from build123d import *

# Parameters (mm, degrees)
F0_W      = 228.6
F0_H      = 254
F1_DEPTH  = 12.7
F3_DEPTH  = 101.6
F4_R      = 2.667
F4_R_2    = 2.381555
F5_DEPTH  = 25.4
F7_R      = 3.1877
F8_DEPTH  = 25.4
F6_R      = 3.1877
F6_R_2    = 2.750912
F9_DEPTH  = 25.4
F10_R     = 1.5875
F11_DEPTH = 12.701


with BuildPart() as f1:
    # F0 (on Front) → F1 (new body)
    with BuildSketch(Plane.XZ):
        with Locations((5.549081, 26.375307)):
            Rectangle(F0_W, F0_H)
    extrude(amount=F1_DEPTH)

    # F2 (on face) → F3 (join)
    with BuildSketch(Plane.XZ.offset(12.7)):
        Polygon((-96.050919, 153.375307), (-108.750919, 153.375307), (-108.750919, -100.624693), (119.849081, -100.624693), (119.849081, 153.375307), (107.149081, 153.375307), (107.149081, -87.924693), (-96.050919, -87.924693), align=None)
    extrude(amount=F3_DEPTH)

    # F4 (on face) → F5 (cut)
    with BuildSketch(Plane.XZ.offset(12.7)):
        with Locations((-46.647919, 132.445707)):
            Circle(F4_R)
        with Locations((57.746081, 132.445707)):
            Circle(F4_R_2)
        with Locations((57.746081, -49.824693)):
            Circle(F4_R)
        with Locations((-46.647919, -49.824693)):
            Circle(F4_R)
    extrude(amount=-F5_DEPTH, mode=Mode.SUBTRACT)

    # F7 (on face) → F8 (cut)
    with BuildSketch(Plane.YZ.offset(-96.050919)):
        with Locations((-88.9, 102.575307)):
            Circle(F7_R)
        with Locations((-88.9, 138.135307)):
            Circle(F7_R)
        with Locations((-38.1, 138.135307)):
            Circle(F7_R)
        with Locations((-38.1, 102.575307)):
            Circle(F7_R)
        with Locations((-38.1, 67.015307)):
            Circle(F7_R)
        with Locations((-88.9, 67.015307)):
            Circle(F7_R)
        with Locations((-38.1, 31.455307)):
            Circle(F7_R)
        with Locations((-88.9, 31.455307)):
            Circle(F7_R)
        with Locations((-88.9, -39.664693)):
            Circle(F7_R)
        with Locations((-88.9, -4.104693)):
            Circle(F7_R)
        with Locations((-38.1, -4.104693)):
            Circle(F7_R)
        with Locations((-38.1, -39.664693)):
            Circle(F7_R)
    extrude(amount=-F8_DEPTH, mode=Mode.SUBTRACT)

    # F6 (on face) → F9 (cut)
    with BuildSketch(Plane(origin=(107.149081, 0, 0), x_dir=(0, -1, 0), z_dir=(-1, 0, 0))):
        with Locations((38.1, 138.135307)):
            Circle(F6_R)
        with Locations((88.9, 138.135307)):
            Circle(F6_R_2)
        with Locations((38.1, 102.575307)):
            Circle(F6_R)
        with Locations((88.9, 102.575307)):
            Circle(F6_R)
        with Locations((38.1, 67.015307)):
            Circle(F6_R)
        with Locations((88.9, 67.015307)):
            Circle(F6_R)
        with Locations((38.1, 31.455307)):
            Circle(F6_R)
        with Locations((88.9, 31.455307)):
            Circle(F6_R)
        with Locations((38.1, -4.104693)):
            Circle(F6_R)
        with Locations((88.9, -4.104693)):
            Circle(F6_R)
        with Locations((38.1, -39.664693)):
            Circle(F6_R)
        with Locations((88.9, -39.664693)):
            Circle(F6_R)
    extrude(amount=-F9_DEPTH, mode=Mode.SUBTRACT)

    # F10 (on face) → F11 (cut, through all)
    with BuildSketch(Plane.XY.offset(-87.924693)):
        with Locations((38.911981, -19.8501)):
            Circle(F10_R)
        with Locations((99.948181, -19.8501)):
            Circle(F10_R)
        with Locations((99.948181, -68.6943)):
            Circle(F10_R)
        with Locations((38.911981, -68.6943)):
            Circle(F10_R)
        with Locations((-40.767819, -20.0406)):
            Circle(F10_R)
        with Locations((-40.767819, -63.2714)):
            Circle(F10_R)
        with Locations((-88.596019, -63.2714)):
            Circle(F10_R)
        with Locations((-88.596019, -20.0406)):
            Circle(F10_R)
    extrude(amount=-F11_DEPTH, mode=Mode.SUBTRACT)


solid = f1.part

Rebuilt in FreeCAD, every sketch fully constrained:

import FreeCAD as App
import Part
import Sketcher

V = App.Vector
Q = App.Units.Quantity

doc = App.newDocument("Part")
params = doc.addObject("Spreadsheet::Sheet", "Params")
for row, (alias, value) in enumerate([
    ("sketch1_width", "9 in"),
    ("sketch1_height", "10 in"),
    ("pad1_length", "0.5 in"),
    ("sketch2_width", "9 in"),
    ("sketch2_width2", "8 in"),
    ("sketch2_height", "10 in"),
    ("sketch2_height2", "9.5 in"),
    ("pad2_length", "4 in"),
    ("sketch3_diameter", "0.21 in"),
    ("pocket1_length", "1 in"),
    ("sketch4_diameter", "0.251 in"),
    ("pocket2_length", "1 in"),
    ("sketch5_diameter", "0.251 in"),
    ("pocket3_length", "1 in"),
    ("sketch6_diameter", "0.125 in"),
], start=1):
    params.set(f"A{row}", alias)
    params.set(f"B{row}", "=" + value)
    params.setAlias(f"B{row}", alias)

body = doc.addObject("PartDesign::Body", "Body")

sketch1 = doc.addObject("Sketcher::SketchObject", "Sketch")
body.addObject(sketch1)
sketch1.AttachmentSupport = (doc.XZ_Plane, [""])
sketch1.MapMode = "FlatFace"
sketch1.addGeometry([
    Part.LineSegment(V(-108.750919, 153.375307, 0), V(-108.750919, -100.624693, 0)),
    Part.LineSegment(V(-108.750919, -100.624693, 0), V(119.849081, -100.624693, 0)),
    Part.LineSegment(V(119.849081, -100.624693, 0), V(119.849081, 153.375307, 0)),
    Part.LineSegment(V(119.849081, 153.375307, 0), V(-108.750919, 153.375307, 0)),
], False)
sketch1.addConstraint([
    Sketcher.Constraint("Coincident", 0, 2, 1, 1),
    Sketcher.Constraint("Coincident", 1, 2, 2, 1),
    Sketcher.Constraint("Coincident", 2, 2, 3, 1),
    Sketcher.Constraint("Coincident", 3, 2, 0, 1),
    Sketcher.Constraint("Vertical", 0),
    Sketcher.Constraint("Horizontal", 1),
    Sketcher.Constraint("Vertical", 2),
    Sketcher.Constraint("Horizontal", 3),
    Sketcher.Constraint("DistanceX", 1, 1, 1, 2, Q("9 in")),
    Sketcher.Constraint("DistanceY", 0, 2, 0, 1, Q("10 in")),
    Sketcher.Constraint("DistanceX", 0, 2, -1, 1, Q("108.750919 mm")),
    Sketcher.Constraint("DistanceY", 0, 2, -1, 1, Q("100.624693 mm")),
])
sketch1.setExpression("Constraints[8]", "Params.sketch1_width")
sketch1.setExpression("Constraints[9]", "Params.sketch1_height")
pad1 = doc.addObject("PartDesign::Pad", "Pad")
body.addObject(pad1)
pad1.Profile = sketch1
pad1.setExpression("Length", "Params.pad1_length")

sketch2 = doc.addObject("Sketcher::SketchObject", "Sketch001")
body.addObject(sketch2)
sketch2.AttachmentSupport = (doc.XZ_Plane, [""])
sketch2.MapMode = "FlatFace"
sketch2.AttachmentOffset = App.Placement(V(0, 0, 0.5 * 25.4), App.Rotation())
sketch2.addGeometry([
    Part.LineSegment(V(-96.050919, 153.375307, 0), V(-108.750919, 153.375307, 0)),
    Part.LineSegment(V(-108.750919, 153.375307, 0), V(-108.750919, -100.624693, 0)),
    Part.LineSegment(V(-108.750919, -100.624693, 0), V(119.849081, -100.624693, 0)),
    Part.LineSegment(V(119.849081, -100.624693, 0), V(119.849081, 153.375307, 0)),
    Part.LineSegment(V(119.849081, 153.375307, 0), V(107.149081, 153.375307, 0)),
    Part.LineSegment(V(107.149081, 153.375307, 0), V(107.149081, -87.924693, 0)),
    Part.LineSegment(V(107.149081, -87.924693, 0), V(-96.050919, -87.924693, 0)),
    Part.LineSegment(V(-96.050919, -87.924693, 0), V(-96.050919, 153.375307, 0)),
], False)
sketch2.addConstraint([
    Sketcher.Constraint("Coincident", 0, 2, 1, 1),
    Sketcher.Constraint("Coincident", 1, 2, 2, 1),
    Sketcher.Constraint("Coincident", 2, 2, 3, 1),
    Sketcher.Constraint("Coincident", 3, 2, 4, 1),
    Sketcher.Constraint("Coincident", 4, 2, 5, 1),
    Sketcher.Constraint("Coincident", 5, 2, 6, 1),
    Sketcher.Constraint("Coincident", 6, 2, 7, 1),
    Sketcher.Constraint("Coincident", 7, 2, 0, 1),
    Sketcher.Constraint("Horizontal", 0),
    Sketcher.Constraint("Vertical", 1),
    Sketcher.Constraint("Horizontal", 2),
    Sketcher.Constraint("Vertical", 3),
    Sketcher.Constraint("Horizontal", 4),
    Sketcher.Constraint("Vertical", 5),
    Sketcher.Constraint("Horizontal", 6),
    Sketcher.Constraint("Vertical", 7),
    Sketcher.Constraint("Horizontal", 0, 2, 3, 2),
    Sketcher.Constraint("Equal", 0, 4),
    Sketcher.Constraint("DistanceX", 2, 1, 2, 2, Q("9 in")),
    Sketcher.Constraint("DistanceX", 6, 2, 6, 1, Q("8 in")),
    Sketcher.Constraint("DistanceY", 1, 2, 1, 1, Q("10 in")),
    Sketcher.Constraint("DistanceY", 5, 2, 5, 1, Q("9.5 in")),
    Sketcher.Constraint("DistanceX", 0, 2, -1, 1, Q("108.750919 mm")),
    Sketcher.Constraint("DistanceY", -1, 1, 0, 2, Q("153.375307 mm")),
])
sketch2.setExpression("Constraints[18]", "Params.sketch2_width")
sketch2.setExpression("Constraints[19]", "Params.sketch2_width2")
sketch2.setExpression("Constraints[20]", "Params.sketch2_height")
sketch2.setExpression("Constraints[21]", "Params.sketch2_height2")
pad2 = doc.addObject("PartDesign::Pad", "Pad001")
body.addObject(pad2)
pad2.Profile = sketch2
pad2.setExpression("Length", "Params.pad2_length")

sketch3 = doc.addObject("Sketcher::SketchObject", "Sketch002")
body.addObject(sketch3)
sketch3.AttachmentSupport = (doc.XZ_Plane, [""])
sketch3.MapMode = "FlatFace"
sketch3.AttachmentOffset = App.Placement(V(0, 0, 0.5 * 25.4), App.Rotation())
sketch3.addGeometry([
    Part.Circle(V(-46.647919, 132.445707, 0), V(0, 0, 1), 2.667),
    Part.Circle(V(57.746081, 132.445707, 0), V(0, 0, 1), 2.381555),
    Part.Circle(V(57.746081, -49.824693, 0), V(0, 0, 1), 2.667),
    Part.Circle(V(-46.647919, -49.824693, 0), V(0, 0, 1), 2.667),
], False)
sketch3.addConstraint([
    Sketcher.Constraint("Equal", 0, 2),
    Sketcher.Constraint("Equal", 2, 3),
    Sketcher.Constraint("Horizontal", 0, 3, 1, 3),
    Sketcher.Constraint("Horizontal", 2, 3, 3, 3),
    Sketcher.Constraint("Vertical", 1, 3, 2, 3),
    Sketcher.Constraint("Vertical", 0, 3, 3, 3),
    Sketcher.Constraint("Diameter", 0, Q("0.21 in")),
    Sketcher.Constraint("DistanceX", 0, 3, 1, 3, Q("4.11 in")),
    Sketcher.Constraint("Diameter", 1, Q("4.76311 mm")),
    Sketcher.Constraint("DistanceY", 2, 3, 1, 3, Q("7.176 in")),
    Sketcher.Constraint("DistanceX", 0, 3, -1, 1, Q("46.647919 mm")),
    Sketcher.Constraint("DistanceY", -1, 1, 0, 3, Q("132.445707 mm")),
])
sketch3.setExpression("Constraints[6]", "Params.sketch3_diameter")
pocket1 = doc.addObject("PartDesign::Pocket", "Pocket")
body.addObject(pocket1)
pocket1.Profile = sketch3
pocket1.setExpression("Length", "Params.pocket1_length")

sketch4 = doc.addObject("Sketcher::SketchObject", "Sketch003")
body.addObject(sketch4)
sketch4.AttachmentSupport = (doc.YZ_Plane, [""])
sketch4.MapMode = "FlatFace"
sketch4.AttachmentOffset = App.Placement(V(0, 0, -96.050919), App.Rotation())
sketch4.addGeometry([
    Part.Circle(V(-88.9, 102.575307, 0), V(0, 0, 1), 3.1877),
    Part.Circle(V(-88.9, 138.135307, 0), V(0, 0, 1), 3.1877),
    Part.Circle(V(-38.1, 138.135307, 0), V(0, 0, 1), 3.1877),
    Part.Circle(V(-38.1, 102.575307, 0), V(0, 0, 1), 3.1877),
    Part.Circle(V(-38.1, 67.015307, 0), V(0, 0, 1), 3.1877),
    Part.Circle(V(-88.9, 67.015307, 0), V(0, 0, 1), 3.1877),
    Part.Circle(V(-38.1, 31.455307, 0), V(0, 0, 1), 3.1877),
    Part.Circle(V(-88.9, 31.455307, 0), V(0, 0, 1), 3.1877),
    Part.Circle(V(-88.9, -39.664693, 0), V(0, 0, 1), 3.1877),
    Part.Circle(V(-88.9, -4.104693, 0), V(0, 0, 1), 3.1877),
    Part.Circle(V(-38.1, -4.104693, 0), V(0, 0, 1), 3.1877),
    Part.Circle(V(-38.1, -39.664693, 0), V(0, 0, 1), 3.1877),
], False)
sketch4.addConstraint([
    Sketcher.Constraint("Equal", 0, 1),
    Sketcher.Constraint("Equal", 1, 2),
    Sketcher.Constraint("Equal", 2, 3),
    Sketcher.Constraint("Equal", 3, 4),
    Sketcher.Constraint("Equal", 4, 5),
    Sketcher.Constraint("Equal", 5, 6),
    Sketcher.Constraint("Equal", 6, 7),
    Sketcher.Constraint("Equal", 7, 8),
    Sketcher.Constraint("Equal", 8, 9),
    Sketcher.Constraint("Equal", 9, 10),
    Sketcher.Constraint("Equal", 10, 11),
    Sketcher.Constraint("Horizontal", 1, 3, 2, 3),
    Sketcher.Constraint("Horizontal", 0, 3, 3, 3),
    Sketcher.Constraint("Horizontal", 4, 3, 5, 3),
    Sketcher.Constraint("Horizontal", 6, 3, 7, 3),
    Sketcher.Constraint("Horizontal", 9, 3, 10, 3),
    Sketcher.Constraint("Horizontal", 8, 3, 11, 3),
    Sketcher.Constraint("Vertical", 0, 3, 1, 3),
    Sketcher.Constraint("Vertical", 2, 3, 3, 3),
    Sketcher.Constraint("Vertical", 3, 3, 4, 3),
    Sketcher.Constraint("Vertical", 1, 3, 5, 3),
    Sketcher.Constraint("Vertical", 4, 3, 6, 3),
    Sketcher.Constraint("Vertical", 5, 3, 7, 3),
    Sketcher.Constraint("Vertical", 7, 3, 8, 3),
    Sketcher.Constraint("Vertical", 8, 3, 9, 3),
    Sketcher.Constraint("Vertical", 6, 3, 10, 3),
    Sketcher.Constraint("Vertical", 10, 3, 11, 3),
    Sketcher.Constraint("Diameter", 0, Q("0.251 in")),
    Sketcher.Constraint("DistanceX", 1, 3, 2, 3, Q("2 in")),
    Sketcher.Constraint("DistanceX", 0, 3, -1, 1, Q("3.5 in")),
    Sketcher.Constraint("DistanceY", 0, 3, 1, 3, Q("1.4 in")),
    Sketcher.Constraint("DistanceY", 4, 3, 3, 3, Q("1.4 in")),
    Sketcher.Constraint("DistanceY", 6, 3, 4, 3, Q("1.4 in")),
    Sketcher.Constraint("DistanceY", 8, 3, 7, 3, Q("2.8 in")),
    Sketcher.Constraint("DistanceY", 9, 3, 7, 3, Q("1.4 in")),
    Sketcher.Constraint("DistanceY", -1, 1, 0, 3, Q("102.575307 mm")),
])
sketch4.setExpression("Constraints[27]", "Params.sketch4_diameter")
pocket2 = doc.addObject("PartDesign::Pocket", "Pocket001")
body.addObject(pocket2)
pocket2.Profile = sketch4
pocket2.setExpression("Length", "Params.pocket2_length")

sketch5 = doc.addObject("Sketcher::SketchObject", "Sketch004")
body.addObject(sketch5)
sketch5.AttachmentSupport = (doc.YZ_Plane, [""])
sketch5.MapMode = "FlatFace"
sketch5.AttachmentOffset = App.Placement(V(0, 0, 107.149081), App.Rotation())
sketch5.addGeometry([
    Part.Circle(V(-38.1, 138.135307, 0), V(0, 0, 1), 3.1877),
    Part.Circle(V(-88.9, 138.135307, 0), V(0, 0, 1), 2.750912),
    Part.Circle(V(-38.1, 102.575307, 0), V(0, 0, 1), 3.1877),
    Part.Circle(V(-88.9, 102.575307, 0), V(0, 0, 1), 3.1877),
    Part.Circle(V(-38.1, 67.015307, 0), V(0, 0, 1), 3.1877),
    Part.Circle(V(-88.9, 67.015307, 0), V(0, 0, 1), 3.1877),
    Part.Circle(V(-38.1, 31.455307, 0), V(0, 0, 1), 3.1877),
    Part.Circle(V(-88.9, 31.455307, 0), V(0, 0, 1), 3.1877),
    Part.Circle(V(-38.1, -4.104693, 0), V(0, 0, 1), 3.1877),
    Part.Circle(V(-88.9, -4.104693, 0), V(0, 0, 1), 3.1877),
    Part.Circle(V(-38.1, -39.664693, 0), V(0, 0, 1), 3.1877),
    Part.Circle(V(-88.9, -39.664693, 0), V(0, 0, 1), 3.1877),
], False)
sketch5.addConstraint([
    Sketcher.Constraint("Equal", 0, 2),
    Sketcher.Constraint("Equal", 2, 3),
    Sketcher.Constraint("Equal", 3, 4),
    Sketcher.Constraint("Equal", 4, 5),
    Sketcher.Constraint("Equal", 5, 6),
    Sketcher.Constraint("Equal", 6, 7),
    Sketcher.Constraint("Equal", 7, 8),
    Sketcher.Constraint("Equal", 8, 9),
    Sketcher.Constraint("Equal", 9, 10),
    Sketcher.Constraint("Equal", 10, 11),
    Sketcher.Constraint("Horizontal", 0, 3, 1, 3),
    Sketcher.Constraint("Horizontal", 2, 3, 3, 3),
    Sketcher.Constraint("Horizontal", 4, 3, 5, 3),
    Sketcher.Constraint("Horizontal", 6, 3, 7, 3),
    Sketcher.Constraint("Horizontal", 8, 3, 9, 3),
    Sketcher.Constraint("Horizontal", 10, 3, 11, 3),
    Sketcher.Constraint("Vertical", 0, 3, 2, 3),
    Sketcher.Constraint("Vertical", 1, 3, 3, 3),
    Sketcher.Constraint("Vertical", 2, 3, 4, 3),
    Sketcher.Constraint("Vertical", 3, 3, 5, 3),
    Sketcher.Constraint("Vertical", 4, 3, 6, 3),
    Sketcher.Constraint("Vertical", 5, 3, 7, 3),
    Sketcher.Constraint("Vertical", 6, 3, 8, 3),
    Sketcher.Constraint("Vertical", 7, 3, 9, 3),
    Sketcher.Constraint("Vertical", 8, 3, 10, 3),
    Sketcher.Constraint("Vertical", 9, 3, 11, 3),
    Sketcher.Constraint("Diameter", 0, Q("0.251 in")),
    Sketcher.Constraint("DistanceX", 1, 3, 0, 3, Q("2 in")),
    Sketcher.Constraint("DistanceX", 0, 3, -1, 1, Q("1.5 in")),
    Sketcher.Constraint("DistanceY", 2, 3, 0, 3, Q("1.4 in")),
    Sketcher.Constraint("DistanceY", 4, 3, 2, 3, Q("1.4 in")),
    Sketcher.Constraint("DistanceY", 6, 3, 4, 3, Q("1.4 in")),
    Sketcher.Constraint("DistanceY", 8, 3, 6, 3, Q("1.4 in")),
    Sketcher.Constraint("DistanceY", 10, 3, 8, 3, Q("1.4 in")),
    Sketcher.Constraint("Diameter", 1, Q("5.501824 mm")),
    Sketcher.Constraint("DistanceY", -1, 1, 0, 3, Q("138.135307 mm")),
])
sketch5.setExpression("Constraints[26]", "Params.sketch5_diameter")
pocket3 = doc.addObject("PartDesign::Pocket", "Pocket002")
body.addObject(pocket3)
pocket3.Profile = sketch5
pocket3.setExpression("Length", "Params.pocket3_length")
pocket3.Reversed = True

sketch6 = doc.addObject("Sketcher::SketchObject", "Sketch005")
body.addObject(sketch6)
sketch6.AttachmentSupport = (doc.XY_Plane, [""])
sketch6.MapMode = "FlatFace"
sketch6.AttachmentOffset = App.Placement(V(0, 0, -87.924693), App.Rotation())
sketch6.addGeometry([
    Part.Circle(V(38.911981, -19.8501, 0), V(0, 0, 1), 1.5875),
    Part.Circle(V(99.948181, -19.8501, 0), V(0, 0, 1), 1.5875),
    Part.Circle(V(99.948181, -68.6943, 0), V(0, 0, 1), 1.5875),
    Part.Circle(V(38.911981, -68.6943, 0), V(0, 0, 1), 1.5875),
    Part.Circle(V(-40.767819, -20.0406, 0), V(0, 0, 1), 1.5875),
    Part.Circle(V(-40.767819, -63.2714, 0), V(0, 0, 1), 1.5875),
    Part.Circle(V(-88.596019, -63.2714, 0), V(0, 0, 1), 1.5875),
    Part.Circle(V(-88.596019, -20.0406, 0), V(0, 0, 1), 1.5875),
], False)
sketch6.addConstraint([
    Sketcher.Constraint("Equal", 0, 1),
    Sketcher.Constraint("Equal", 1, 2),
    Sketcher.Constraint("Equal", 2, 3),
    Sketcher.Constraint("Equal", 3, 4),
    Sketcher.Constraint("Equal", 4, 5),
    Sketcher.Constraint("Equal", 5, 6),
    Sketcher.Constraint("Equal", 6, 7),
    Sketcher.Constraint("Horizontal", 0, 3, 1, 3),
    Sketcher.Constraint("Horizontal", 2, 3, 3, 3),
    Sketcher.Constraint("Horizontal", 5, 3, 6, 3),
    Sketcher.Constraint("Horizontal", 4, 3, 7, 3),
    Sketcher.Constraint("Vertical", 1, 3, 2, 3),
    Sketcher.Constraint("Vertical", 0, 3, 3, 3),
    Sketcher.Constraint("Vertical", 4, 3, 5, 3),
    Sketcher.Constraint("Vertical", 6, 3, 7, 3),
    Sketcher.Constraint("Diameter", 0, Q("0.125 in")),
    Sketcher.Constraint("DistanceX", 4, 3, 1, 3, Q("5.54 in")),
    Sketcher.Constraint("DistanceX", 6, 3, 3, 3, Q("5.02 in")),
    Sketcher.Constraint("DistanceY", 4, 3, -1, 1, Q("0.789 in")),
    Sketcher.Constraint("DistanceY", 5, 3, -1, 1, Q("2.491 in")),
    Sketcher.Constraint("DistanceX", 0, 3, 1, 3, Q("2.403 in")),
    Sketcher.Constraint("DistanceY", 2, 3, 1, 3, Q("1.923 in")),
    Sketcher.Constraint("DistanceY", 0, 3, -1, 1, Q("0.7815 in")),
    Sketcher.Constraint("DistanceX", -1, 1, 0, 3, Q("38.911981 mm")),
])
sketch6.setExpression("Constraints[15]", "Params.sketch6_diameter")
pocket4 = doc.addObject("PartDesign::Pocket", "Pocket003")
body.addObject(pocket4)
pocket4.Profile = sketch6
pocket4.Type = "ThroughAll"

doc.recompute()
